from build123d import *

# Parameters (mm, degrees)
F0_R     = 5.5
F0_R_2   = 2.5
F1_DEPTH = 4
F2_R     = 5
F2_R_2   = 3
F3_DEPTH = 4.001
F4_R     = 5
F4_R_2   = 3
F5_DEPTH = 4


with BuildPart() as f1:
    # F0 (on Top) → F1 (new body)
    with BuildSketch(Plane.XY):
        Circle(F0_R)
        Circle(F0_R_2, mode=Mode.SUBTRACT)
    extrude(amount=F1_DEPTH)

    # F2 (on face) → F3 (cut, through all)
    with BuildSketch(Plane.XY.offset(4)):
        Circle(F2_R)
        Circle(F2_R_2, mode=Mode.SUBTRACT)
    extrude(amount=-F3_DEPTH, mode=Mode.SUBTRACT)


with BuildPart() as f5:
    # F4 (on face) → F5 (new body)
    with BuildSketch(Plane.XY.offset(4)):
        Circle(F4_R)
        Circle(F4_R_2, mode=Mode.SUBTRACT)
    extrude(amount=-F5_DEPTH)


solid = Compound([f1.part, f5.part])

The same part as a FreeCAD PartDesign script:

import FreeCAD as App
import Part
import Sketcher
from FreeCAD import Vector

doc = App.newDocument("Part")
body = doc.addObject("PartDesign::Body", "Body")
body.AllowCompound = True

# Sketch on XY plane
sketch1 = body.newObject("Sketcher::SketchObject", "Sketch")
sketch1.AttachmentSupport = (doc.getObject("XY_Plane"), [""])
sketch1.MapMode = "FlatFace"
sketch1.addGeometry([
    Part.Circle(Vector(0, 0, 0), Vector(0, 0, 1), 5.5),
    Part.Circle(Vector(0, 0, 0), Vector(0, 0, 1), 2.5),
], False)
sketch1.addConstraint([
    Sketcher.Constraint("Coincident", 0, 3, -1, 1),
    Sketcher.Constraint("Coincident", 1, 3, -1, 1),
    Sketcher.Constraint("Diameter", 0, 11.0),
    Sketcher.Constraint("Diameter", 1, 5.0),
])
pad1 = body.newObject("PartDesign::Pad", "Pad")
pad1.Profile = sketch1
pad1.Length = 4

# Sketch on XY plane
sketch2 = body.newObject("Sketcher::SketchObject", "Sketch001")
sketch2.AttachmentSupport = (doc.getObject("XY_Plane"), [""])
sketch2.MapMode = "FlatFace"
sketch2.AttachmentOffset = App.Placement(Vector(0, 0, 4), App.Rotation())
sketch2.addGeometry([
    Part.Circle(Vector(0, 0, 0), Vector(0, 0, 1), 5),
    Part.Circle(Vector(0, 0, 0), Vector(0, 0, 1), 3),
], False)
sketch2.addConstraint([
    Sketcher.Constraint("Coincident", 0, 3, -1, 1),
    Sketcher.Constraint("Coincident", 1, 3, -1, 1),
    Sketcher.Constraint("Diameter", 0, 10.0),
    Sketcher.Constraint("Diameter", 1, 6.0),
])
pocket1 = body.newObject("PartDesign::Pocket", "Pocket")
pocket1.Profile = sketch2
pocket1.Type = "ThroughAll"
body2 = doc.addObject("PartDesign::Body", "Body001")

# Sketch on XY plane
sketch3 = body2.newObject("Sketcher::SketchObject", "Sketch002")
sketch3.AttachmentSupport = (doc.getObject("XY_Plane001"), [""])
sketch3.MapMode = "FlatFace"
sketch3.AttachmentOffset = App.Placement(Vector(0, 0, 4), App.Rotation())
sketch3.addGeometry([
    Part.Circle(Vector(0, 0, 0), Vector(0, 0, 1), 5),
    Part.Circle(Vector(0, 0, 0), Vector(0, 0, 1), 3),
], False)
sketch3.addConstraint([
    Sketcher.Constraint("Coincident", 0, 3, -1, 1),
    Sketcher.Constraint("Coincident", 1, 3, -1, 1),
    Sketcher.Constraint("Diameter", 0, 10.0),
    Sketcher.Constraint("Diameter", 1, 6.0),
])
pad2 = body2.newObject("PartDesign::Pad", "Pad001")
pad2.Profile = sketch3
pad2.Length = 4
pad2.Reversed = True

doc.recompute()
